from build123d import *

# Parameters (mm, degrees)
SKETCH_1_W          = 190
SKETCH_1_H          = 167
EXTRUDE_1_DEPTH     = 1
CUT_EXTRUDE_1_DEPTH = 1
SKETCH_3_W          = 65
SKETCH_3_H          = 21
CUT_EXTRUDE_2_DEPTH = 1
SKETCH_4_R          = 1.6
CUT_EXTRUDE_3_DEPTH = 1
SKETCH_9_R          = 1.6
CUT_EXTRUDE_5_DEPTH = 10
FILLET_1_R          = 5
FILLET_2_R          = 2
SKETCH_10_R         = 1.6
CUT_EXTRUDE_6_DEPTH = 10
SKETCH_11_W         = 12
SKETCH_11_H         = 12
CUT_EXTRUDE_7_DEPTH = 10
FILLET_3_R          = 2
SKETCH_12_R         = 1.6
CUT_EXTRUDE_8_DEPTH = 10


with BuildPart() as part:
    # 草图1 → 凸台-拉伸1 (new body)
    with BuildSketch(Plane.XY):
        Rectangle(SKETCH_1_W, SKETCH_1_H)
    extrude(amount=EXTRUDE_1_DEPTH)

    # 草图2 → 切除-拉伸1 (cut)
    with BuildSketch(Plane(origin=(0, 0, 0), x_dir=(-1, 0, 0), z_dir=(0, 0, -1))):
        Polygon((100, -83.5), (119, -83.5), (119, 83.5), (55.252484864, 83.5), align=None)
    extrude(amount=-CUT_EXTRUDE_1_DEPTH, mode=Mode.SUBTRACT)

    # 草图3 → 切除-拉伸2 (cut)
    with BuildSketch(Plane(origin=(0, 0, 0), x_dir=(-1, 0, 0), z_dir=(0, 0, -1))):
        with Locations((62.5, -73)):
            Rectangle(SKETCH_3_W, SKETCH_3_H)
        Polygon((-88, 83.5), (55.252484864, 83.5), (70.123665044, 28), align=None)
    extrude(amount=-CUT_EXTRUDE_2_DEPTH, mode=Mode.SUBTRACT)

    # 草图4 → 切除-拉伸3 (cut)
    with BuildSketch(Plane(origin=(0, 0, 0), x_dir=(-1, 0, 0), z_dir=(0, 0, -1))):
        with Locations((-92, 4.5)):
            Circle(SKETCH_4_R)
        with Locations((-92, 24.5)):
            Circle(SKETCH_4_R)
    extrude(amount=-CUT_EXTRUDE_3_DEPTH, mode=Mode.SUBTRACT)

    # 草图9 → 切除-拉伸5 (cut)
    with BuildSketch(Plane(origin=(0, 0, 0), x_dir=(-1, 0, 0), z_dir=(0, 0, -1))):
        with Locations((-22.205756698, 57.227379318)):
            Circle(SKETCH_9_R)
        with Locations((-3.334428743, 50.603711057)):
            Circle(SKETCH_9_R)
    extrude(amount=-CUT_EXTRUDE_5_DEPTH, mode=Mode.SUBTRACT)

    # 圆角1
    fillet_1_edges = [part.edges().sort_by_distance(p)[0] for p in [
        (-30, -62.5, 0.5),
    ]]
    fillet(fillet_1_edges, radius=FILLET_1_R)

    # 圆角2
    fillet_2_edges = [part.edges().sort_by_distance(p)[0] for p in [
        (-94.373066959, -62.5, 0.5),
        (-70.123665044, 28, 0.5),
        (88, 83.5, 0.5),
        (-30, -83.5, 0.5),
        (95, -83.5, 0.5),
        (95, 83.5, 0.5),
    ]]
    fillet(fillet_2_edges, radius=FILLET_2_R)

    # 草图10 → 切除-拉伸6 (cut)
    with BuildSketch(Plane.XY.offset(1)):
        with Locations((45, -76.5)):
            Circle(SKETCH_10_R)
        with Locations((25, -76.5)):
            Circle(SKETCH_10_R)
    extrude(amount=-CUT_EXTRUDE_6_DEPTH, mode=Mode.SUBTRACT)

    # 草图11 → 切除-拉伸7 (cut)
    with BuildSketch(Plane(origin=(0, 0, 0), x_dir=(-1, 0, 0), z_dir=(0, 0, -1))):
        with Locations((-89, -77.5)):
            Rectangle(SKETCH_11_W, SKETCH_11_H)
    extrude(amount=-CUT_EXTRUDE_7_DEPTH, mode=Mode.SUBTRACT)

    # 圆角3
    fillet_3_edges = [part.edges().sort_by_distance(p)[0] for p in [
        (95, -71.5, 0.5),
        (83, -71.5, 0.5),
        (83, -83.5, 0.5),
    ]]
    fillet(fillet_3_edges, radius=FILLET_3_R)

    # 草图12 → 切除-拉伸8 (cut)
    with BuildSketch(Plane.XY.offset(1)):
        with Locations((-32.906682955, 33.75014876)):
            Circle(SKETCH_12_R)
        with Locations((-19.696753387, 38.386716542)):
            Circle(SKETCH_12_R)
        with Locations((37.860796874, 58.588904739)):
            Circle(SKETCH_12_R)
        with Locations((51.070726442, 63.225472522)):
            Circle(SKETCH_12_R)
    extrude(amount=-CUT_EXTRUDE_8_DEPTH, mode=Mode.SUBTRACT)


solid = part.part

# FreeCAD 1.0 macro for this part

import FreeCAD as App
import Part
import Sketcher
from FreeCAD import Vector
Q = App.Units.Quantity


def edges_at(feature, points):
    """Names of the edges that pass closest to the given points."""
    edges = feature.Shape.Edges
    near = lambda p: min(range(len(edges)), key=lambda i: edges[i].distToShape(Part.Vertex(*p))[0])
    return sorted({f"Edge{near(p) + 1}" for p in points})

doc = App.newDocument("Part")
params = doc.addObject("Spreadsheet::Sheet", "Params")
for row, (alias, value) in enumerate([
    ("sketch1_width", "190 mm"),
    ("sketch1_height", "167 mm"),
    ("pad1_length", "1 mm"),
    ("sketch2_width", "19 mm"),
    ("sketch2_height", "167 mm"),
    ("pocket1_length", "1 mm"),
    ("sketch3_width", "65 mm"),
    ("sketch3_height", "21 mm"),
    ("pocket2_length", "1 mm"),
    ("sketch4_diameter", "3.2 mm"),
    ("pocket3_length", "1 mm"),
    ("sketch5_diameter", "3.2 mm"),
    ("pocket4_length", "10 mm"),
    ("fillet_radius", "5 mm"),
    ("fillet2_radius", "2 mm"),
    ("sketch6_diameter", "3.2 mm"),
    ("pocket5_length", "10 mm"),
    ("sketch7_width", "12 mm"),
    ("pocket6_length", "10 mm"),
    ("fillet3_radius", "2 mm"),
    ("sketch8_diameter", "3.2 mm"),
    ("pocket7_length", "10 mm"),
], start=1):
    params.set(f"A{row}", alias)
    params.set(f"B{row}", "=" + value)
    params.setAlias(f"B{row}", alias)

body = doc.addObject("PartDesign::Body", "Body")

sketch1 = doc.addObject("Sketcher::SketchObject", "Sketch")
body.addObject(sketch1)
sketch1.AttachmentSupport = (doc.XY_Plane, [""])
sketch1.MapMode = "FlatFace"
sketch1.addGeometry([
    Part.LineSegment(Vector(-95, 84, 0), Vector(-95, -84, 0)),
    Part.LineSegment(Vector(-95, -84, 0), Vector(95, -84, 0)),
    Part.LineSegment(Vector(95, -84, 0), Vector(95, 84, 0)),
    Part.LineSegment(Vector(95, 84, 0), Vector(-95, 84, 0)),
], False)
sketch1.addConstraint([
    Sketcher.Constraint("Coincident", 0, 2, 1, 1),
    Sketcher.Constraint("Coincident", 1, 2, 2, 1),
    Sketcher.Constraint("Coincident", 2, 2, 3, 1),
    Sketcher.Constraint("Coincident", 3, 2, 0, 1),
    Sketcher.Constraint("Vertical", 0),
    Sketcher.Constraint("Horizontal", 1),
    Sketcher.Constraint("Vertical", 2),
    Sketcher.Constraint("Horizontal", 3),
    Sketcher.Constraint("Symmetric", 0, 2, 2, 2, -1, 1),
    Sketcher.Constraint("DistanceX", 1, 1, 1, 2, 190.0),
    Sketcher.Constraint("DistanceY", 0, 2, 0, 1, 167.0),
])
sketch1.setExpression("Constraints[9]", "Params.sketch1_width")
sketch1.setExpression("Constraints[10]", "Params.sketch1_height")
pad1 = doc.addObject("PartDesign::Pad", "Pad")
body.addObject(pad1)
pad1.Profile = sketch1
pad1.setExpression("Length", "Params.pad1_length")

sketch2 = doc.addObject("Sketcher::SketchObject", "Sketch001")
body.addObject(sketch2)
sketch2.AttachmentSupport = (doc.XY_Plane, [""])
sketch2.MapMode = "FlatFace"
sketch2.addGeometry([
    Part.LineSegment(Vector(-100, -84, 0), Vector(-119, -84, 0)),
    Part.LineSegment(Vector(-119, -84, 0), Vector(-119, 84, 0)),
    Part.LineSegment(Vector(-119, 84, 0), Vector(-55, 84, 0)),
    Part.LineSegment(Vector(-55, 84, 0), Vector(-100, -84, 0)),
], False)
sketch2.addConstraint([
    Sketcher.Constraint("Coincident", 0, 2, 1, 1),
    Sketcher.Constraint("Coincident", 1, 2, 2, 1),
    Sketcher.Constraint("Coincident", 2, 2, 3, 1),
    Sketcher.Constraint("Coincident", 3, 2, 0, 1),
    Sketcher.Constraint("Horizontal", 0),
    Sketcher.Constraint("Vertical", 1),
    Sketcher.Constraint("Horizontal", 2),
    Sketcher.Constraint("DistanceX", 0, 2, 0, 1, 19.0),
    Sketcher.Constraint("DistanceY", 1, 1, 1, 2, 167.0),
    Sketcher.Constraint("Angle", 3, Q("-105 deg")),
    Sketcher.Constraint("DistanceX", 0, 2, -1, 1, 119.0),
    Sketcher.Constraint("DistanceY", 0, 2, -1, 1, 83.5),
])
sketch2.setExpression("Constraints[7]", "Params.sketch2_width")
sketch2.setExpression("Constraints[8]", "Params.sketch2_height")
pocket1 = doc.addObject("PartDesign::Pocket", "Pocket")
body.addObject(pocket1)
pocket1.Profile = sketch2
pocket1.setExpression("Length", "Params.pocket1_length")
pocket1.Reversed = True

sketch3 = doc.addObject("Sketcher::SketchObject", "Sketch002")
body.addObject(sketch3)
sketch3.AttachmentSupport = (doc.XY_Plane, [""])
sketch3.MapMode = "FlatFace"
sketch3.addGeometry([
    Part.LineSegment(Vector(-30, -62, 0), Vector(-30, -84, 0)),
    Part.LineSegment(Vector(-30, -84, 0), Vector(-95, -84, 0)),
    Part.LineSegment(Vector(-95, -84, 0), Vector(-95, -62, 0)),
    Part.LineSegment(Vector(-95, -62, 0), Vector(-30, -62, 0)),
    Part.LineSegment(Vector(-55, 84, 0), Vector(88, 84, 0)),
    Part.LineSegment(Vector(88, 84, 0), Vector(-70, 28, 0)),
    Part.LineSegment(Vector(-70, 28, 0), Vector(-55, 84, 0)),
], False)
sketch3.addConstraint([
    Sketcher.Constraint("Coincident", 0, 2, 1, 1),
    Sketcher.Constraint("Coincident", 1, 2, 2, 1),
    Sketcher.Constraint("Coincident", 2, 2, 3, 1),
    Sketcher.Constraint("Coincident", 3, 2, 0, 1),
    Sketcher.Constraint("Coincident", 4, 2, 5, 1),
    Sketcher.Constraint("Coincident", 5, 2, 6, 1),
    Sketcher.Constraint("Coincident", 6, 2, 4, 1),
    Sketcher.Constraint("Vertical", 0),
    Sketcher.Constraint("Horizontal", 1),
    Sketcher.Constraint("Vertical", 2),
    Sketcher.Constraint("Horizontal", 3),
    Sketcher.Constraint("Horizontal", 4),
    Sketcher.Constraint("DistanceX", 1, 2, 1, 1, 65.0),
    Sketcher.Constraint("DistanceY", 0, 2, 0, 1, 21.0),
    Sketcher.Constraint("Angle", 6, Q("75 deg")),
    Sketcher.Constraint("DistanceX", 0, 2, -1, 1, 30.0),
    Sketcher.Constraint("DistanceX", -1, 1, 4, 2, 88.0),
    Sketcher.Constraint("DistanceY", -1, 1, 5, 2, 28.0),
    Sketcher.Constraint("DistanceY", 3, 2, 4, 2, 146.0),
    Sketcher.Constraint("DistanceY", 0, 2, -1, 1, 83.5),
    Sketcher.Constraint("DistanceX", 4, 1, 4, 2, 143.252485),
])
sketch3.setExpression("Constraints[12]", "Params.sketch3_width")
sketch3.setExpression("Constraints[13]", "Params.sketch3_height")
pocket2 = doc.addObject("PartDesign::Pocket", "Pocket001")
body.addObject(pocket2)
pocket2.Profile = sketch3
pocket2.setExpression("Length", "Params.pocket2_length")
pocket2.Reversed = True

sketch4 = doc.addObject("Sketcher::SketchObject", "Sketch003")
body.addObject(sketch4)
sketch4.AttachmentSupport = (doc.XY_Plane, [""])
sketch4.MapMode = "FlatFace"
sketch4.addGeometry([
    Part.Circle(Vector(92, 4.5, 0), Vector(0, 0, 1), 1.6),
    Part.Circle(Vector(92, 24.5, 0), Vector(0, 0, 1), 1.6),
], False)
sketch4.addConstraint([
    Sketcher.Constraint("Equal", 0, 1),
    Sketcher.Constraint("Vertical", 0, 3, 1, 3),
    Sketcher.Constraint("Diameter", 0, 3.2),
    Sketcher.Constraint("DistanceX", -1, 1, 0, 3, 92.0),
    Sketcher.Constraint("DistanceY", 0, 3, 1, 3, 20.0),
    Sketcher.Constraint("DistanceY", -1, 1, 0, 3, 4.5),
])
sketch4.setExpression("Constraints[2]", "Params.sketch4_diameter")
pocket3 = doc.addObject("PartDesign::Pocket", "Pocket002")
body.addObject(pocket3)
pocket3.Profile = sketch4
pocket3.setExpression("Length", "Params.pocket3_length")
pocket3.Reversed = True

sketch5 = doc.addObject("Sketcher::SketchObject", "Sketch004")
body.addObject(sketch5)
sketch5.AttachmentSupport = (doc.XY_Plane, [""])
sketch5.MapMode = "FlatFace"
sketch5.addGeometry([
    Part.Circle(Vector(22.2, 57.2, 0), Vector(0, 0, 1), 1.6),
    Part.Circle(Vector(3.3, 50.6, 0), Vector(0, 0, 1), 1.6),
], False)
sketch5.addConstraint([
    Sketcher.Constraint("Equal", 0, 1),
    Sketcher.Constraint("Diameter", 0, 3.2),
    Sketcher.Constraint("DistanceY", -1, 1, 0, 3, 57.227379),
    Sketcher.Constraint("DistanceX", -1, 1, 1, 3, 3.334429),
    Sketcher.Constraint("DistanceY", -1, 1, 1, 3, 50.603711),
    Sketcher.Constraint("DistanceX", -1, 1, 0, 3, 22.205757),
])
sketch5.setExpression("Constraints[1]", "Params.sketch5_diameter")
pocket4 = doc.addObject("PartDesign::Pocket", "Pocket003")
body.addObject(pocket4)
pocket4.Profile = sketch5
pocket4.setExpression("Length", "Params.pocket4_length")
pocket4.Reversed = True
doc.recompute()

fillet = doc.addObject("PartDesign::Fillet", "Fillet")
body.addObject(fillet)
fillet.Base = (pocket4, edges_at(pocket4, [(-30, -62.5, 0.5)]))
fillet.setExpression("Radius", "Params.fillet_radius")
doc.recompute()

fillet2 = doc.addObject("PartDesign::Fillet", "Fillet001")
body.addObject(fillet2)
fillet2.Base = (fillet, edges_at(fillet, [
    (-94.373, -62.5, 0.5),
    (-70.124, 28, 0.5),
    (88, 83.5, 0.5),
    (-30, -83.5, 0.5),
    (95, -83.5, 0.5),
    (95, 83.5, 0.5),
]))
fillet2.setExpression("Radius", "Params.fillet2_radius")

sketch6 = doc.addObject("Sketcher::SketchObject", "Sketch005")
body.addObject(sketch6)
sketch6.AttachmentSupport = (doc.XY_Plane, [""])
sketch6.MapMode = "FlatFace"
sketch6.AttachmentOffset = App.Placement(Vector(0, 0, 1), App.Rotation())
sketch6.addGeometry([
    Part.Circle(Vector(45, -76.5, 0), Vector(0, 0, 1), 1.6),
    Part.Circle(Vector(25, -76.5, 0), Vector(0, 0, 1), 1.6),
], False)
sketch6.addConstraint([
    Sketcher.Constraint("Equal", 0, 1),
    Sketcher.Constraint("Horizontal", 0, 3, 1, 3),
    Sketcher.Constraint("Diameter", 0, 3.2),
    Sketcher.Constraint("DistanceX", -1, 1, 0, 3, 45.0),
    Sketcher.Constraint("DistanceX", -1, 1, 1, 3, 25.0),
    Sketcher.Constraint("DistanceY", 0, 3, -1, 1, 76.5),
])
sketch6.setExpression("Constraints[2]", "Params.sketch6_diameter")
pocket5 = doc.addObject("PartDesign::Pocket", "Pocket004")
body.addObject(pocket5)
pocket5.Profile = sketch6
pocket5.setExpression("Length", "Params.pocket5_length")

sketch7 = doc.addObject("Sketcher::SketchObject", "Sketch006")
body.addObject(sketch7)
sketch7.AttachmentSupport = (doc.XY_Plane, [""])
sketch7.MapMode = "FlatFace"
sketch7.addGeometry([
    Part.LineSegment(Vector(95, -72, 0), Vector(95, -84, 0)),
    Part.LineSegment(Vector(95, -84, 0), Vector(83, -84, 0)),
    Part.LineSegment(Vector(83, -84, 0), Vector(83, -72, 0)),
    Part.LineSegment(Vector(83, -72, 0), Vector(95, -72, 0)),
], False)
sketch7.addConstraint([
    Sketcher.Constraint("Coincident", 0, 2, 1, 1),
    Sketcher.Constraint("Coincident", 1, 2, 2, 1),
    Sketcher.Constraint("Coincident", 2, 2, 3, 1),
    Sketcher.Constraint("Coincident", 3, 2, 0, 1),
    Sketcher.Constraint("Vertical", 0),
    Sketcher.Constraint("Horizontal", 1),
    Sketcher.Constraint("Vertical", 2),
    Sketcher.Constraint("Horizontal", 3),
    Sketcher.Constraint("Equal", 3, 0),
    Sketcher.Constraint("DistanceX", 1, 2, 1, 1, 12.0),
    Sketcher.Constraint("DistanceX", -1, 1, 0, 2, 95.0),
    Sketcher.Constraint("DistanceY", 0, 2, -1, 1, 83.5),
])
sketch7.setExpression("Constraints[9]", "Params.sketch7_width")
pocket6 = doc.addObject("PartDesign::Pocket", "Pocket005")
body.addObject(pocket6)
pocket6.Profile = sketch7
pocket6.setExpression("Length", "Params.pocket6_length")
pocket6.Reversed = True
doc.recompute()

fillet3 = doc.addObject("PartDesign::Fillet", "Fillet002")
body.addObject(fillet3)
fillet3.Base = (pocket6, edges_at(pocket6, [(95, -71.5, 0.5), (83, -71.5, 0.5), (83, -83.5, 0.5)]))
fillet3.setExpression("Radius", "Params.fillet3_radius")

sketch8 = doc.addObject("Sketcher::SketchObject", "Sketch007")
body.addObject(sketch8)
sketch8.AttachmentSupport = (doc.XY_Plane, [""])
sketch8.MapMode = "FlatFace"
sketch8.AttachmentOffset = App.Placement(Vector(0, 0, 1), App.Rotation())
sketch8.addGeometry([
    Part.Circle(Vector(-32.9, 33.8, 0), Vector(0, 0, 1), 1.6),
    Part.Circle(Vector(-19.7, 38.4, 0), Vector(0, 0, 1), 1.6),
    Part.Circle(Vector(37.9, 58.6, 0), Vector(0, 0, 1), 1.6),
    Part.Circle(Vector(51.1, 63.2, 0), Vector(0, 0, 1), 1.6),
], False)
sketch8.addConstraint([
    Sketcher.Constraint("Equal", 0, 1),
    Sketcher.Constraint("Equal", 1, 2),
    Sketcher.Constraint("Equal", 2, 3),
    Sketcher.Constraint("Diameter", 0, 3.2),
    Sketcher.Constraint("DistanceY", -1, 1, 0, 3, 33.750149),
    Sketcher.Constraint("DistanceX", 0, 3, 1, 3, 13.20993),
    Sketcher.Constraint("DistanceX", 1, 3, 2, 3, 57.55755),
    Sketcher.Constraint("DistanceY", 1, 3, 2, 3, 20.202188),
    Sketcher.Constraint("DistanceX", 2, 3, 3, 3, 13.20993),
    Sketcher.Constraint("DistanceX", 0, 3, -1, 1, 32.906683),
    Sketcher.Constraint("DistanceY", -1, 1, 1, 3, 38.386717),
    Sketcher.Constraint("DistanceY", -1, 1, 3, 3, 63.225473),
])
sketch8.setExpression("Constraints[3]", "Params.sketch8_diameter")
pocket7 = doc.addObject("PartDesign::Pocket", "Pocket006")
body.addObject(pocket7)
pocket7.Profile = sketch8
pocket7.setExpression("Length", "Params.pocket7_length")

doc.recompute()
